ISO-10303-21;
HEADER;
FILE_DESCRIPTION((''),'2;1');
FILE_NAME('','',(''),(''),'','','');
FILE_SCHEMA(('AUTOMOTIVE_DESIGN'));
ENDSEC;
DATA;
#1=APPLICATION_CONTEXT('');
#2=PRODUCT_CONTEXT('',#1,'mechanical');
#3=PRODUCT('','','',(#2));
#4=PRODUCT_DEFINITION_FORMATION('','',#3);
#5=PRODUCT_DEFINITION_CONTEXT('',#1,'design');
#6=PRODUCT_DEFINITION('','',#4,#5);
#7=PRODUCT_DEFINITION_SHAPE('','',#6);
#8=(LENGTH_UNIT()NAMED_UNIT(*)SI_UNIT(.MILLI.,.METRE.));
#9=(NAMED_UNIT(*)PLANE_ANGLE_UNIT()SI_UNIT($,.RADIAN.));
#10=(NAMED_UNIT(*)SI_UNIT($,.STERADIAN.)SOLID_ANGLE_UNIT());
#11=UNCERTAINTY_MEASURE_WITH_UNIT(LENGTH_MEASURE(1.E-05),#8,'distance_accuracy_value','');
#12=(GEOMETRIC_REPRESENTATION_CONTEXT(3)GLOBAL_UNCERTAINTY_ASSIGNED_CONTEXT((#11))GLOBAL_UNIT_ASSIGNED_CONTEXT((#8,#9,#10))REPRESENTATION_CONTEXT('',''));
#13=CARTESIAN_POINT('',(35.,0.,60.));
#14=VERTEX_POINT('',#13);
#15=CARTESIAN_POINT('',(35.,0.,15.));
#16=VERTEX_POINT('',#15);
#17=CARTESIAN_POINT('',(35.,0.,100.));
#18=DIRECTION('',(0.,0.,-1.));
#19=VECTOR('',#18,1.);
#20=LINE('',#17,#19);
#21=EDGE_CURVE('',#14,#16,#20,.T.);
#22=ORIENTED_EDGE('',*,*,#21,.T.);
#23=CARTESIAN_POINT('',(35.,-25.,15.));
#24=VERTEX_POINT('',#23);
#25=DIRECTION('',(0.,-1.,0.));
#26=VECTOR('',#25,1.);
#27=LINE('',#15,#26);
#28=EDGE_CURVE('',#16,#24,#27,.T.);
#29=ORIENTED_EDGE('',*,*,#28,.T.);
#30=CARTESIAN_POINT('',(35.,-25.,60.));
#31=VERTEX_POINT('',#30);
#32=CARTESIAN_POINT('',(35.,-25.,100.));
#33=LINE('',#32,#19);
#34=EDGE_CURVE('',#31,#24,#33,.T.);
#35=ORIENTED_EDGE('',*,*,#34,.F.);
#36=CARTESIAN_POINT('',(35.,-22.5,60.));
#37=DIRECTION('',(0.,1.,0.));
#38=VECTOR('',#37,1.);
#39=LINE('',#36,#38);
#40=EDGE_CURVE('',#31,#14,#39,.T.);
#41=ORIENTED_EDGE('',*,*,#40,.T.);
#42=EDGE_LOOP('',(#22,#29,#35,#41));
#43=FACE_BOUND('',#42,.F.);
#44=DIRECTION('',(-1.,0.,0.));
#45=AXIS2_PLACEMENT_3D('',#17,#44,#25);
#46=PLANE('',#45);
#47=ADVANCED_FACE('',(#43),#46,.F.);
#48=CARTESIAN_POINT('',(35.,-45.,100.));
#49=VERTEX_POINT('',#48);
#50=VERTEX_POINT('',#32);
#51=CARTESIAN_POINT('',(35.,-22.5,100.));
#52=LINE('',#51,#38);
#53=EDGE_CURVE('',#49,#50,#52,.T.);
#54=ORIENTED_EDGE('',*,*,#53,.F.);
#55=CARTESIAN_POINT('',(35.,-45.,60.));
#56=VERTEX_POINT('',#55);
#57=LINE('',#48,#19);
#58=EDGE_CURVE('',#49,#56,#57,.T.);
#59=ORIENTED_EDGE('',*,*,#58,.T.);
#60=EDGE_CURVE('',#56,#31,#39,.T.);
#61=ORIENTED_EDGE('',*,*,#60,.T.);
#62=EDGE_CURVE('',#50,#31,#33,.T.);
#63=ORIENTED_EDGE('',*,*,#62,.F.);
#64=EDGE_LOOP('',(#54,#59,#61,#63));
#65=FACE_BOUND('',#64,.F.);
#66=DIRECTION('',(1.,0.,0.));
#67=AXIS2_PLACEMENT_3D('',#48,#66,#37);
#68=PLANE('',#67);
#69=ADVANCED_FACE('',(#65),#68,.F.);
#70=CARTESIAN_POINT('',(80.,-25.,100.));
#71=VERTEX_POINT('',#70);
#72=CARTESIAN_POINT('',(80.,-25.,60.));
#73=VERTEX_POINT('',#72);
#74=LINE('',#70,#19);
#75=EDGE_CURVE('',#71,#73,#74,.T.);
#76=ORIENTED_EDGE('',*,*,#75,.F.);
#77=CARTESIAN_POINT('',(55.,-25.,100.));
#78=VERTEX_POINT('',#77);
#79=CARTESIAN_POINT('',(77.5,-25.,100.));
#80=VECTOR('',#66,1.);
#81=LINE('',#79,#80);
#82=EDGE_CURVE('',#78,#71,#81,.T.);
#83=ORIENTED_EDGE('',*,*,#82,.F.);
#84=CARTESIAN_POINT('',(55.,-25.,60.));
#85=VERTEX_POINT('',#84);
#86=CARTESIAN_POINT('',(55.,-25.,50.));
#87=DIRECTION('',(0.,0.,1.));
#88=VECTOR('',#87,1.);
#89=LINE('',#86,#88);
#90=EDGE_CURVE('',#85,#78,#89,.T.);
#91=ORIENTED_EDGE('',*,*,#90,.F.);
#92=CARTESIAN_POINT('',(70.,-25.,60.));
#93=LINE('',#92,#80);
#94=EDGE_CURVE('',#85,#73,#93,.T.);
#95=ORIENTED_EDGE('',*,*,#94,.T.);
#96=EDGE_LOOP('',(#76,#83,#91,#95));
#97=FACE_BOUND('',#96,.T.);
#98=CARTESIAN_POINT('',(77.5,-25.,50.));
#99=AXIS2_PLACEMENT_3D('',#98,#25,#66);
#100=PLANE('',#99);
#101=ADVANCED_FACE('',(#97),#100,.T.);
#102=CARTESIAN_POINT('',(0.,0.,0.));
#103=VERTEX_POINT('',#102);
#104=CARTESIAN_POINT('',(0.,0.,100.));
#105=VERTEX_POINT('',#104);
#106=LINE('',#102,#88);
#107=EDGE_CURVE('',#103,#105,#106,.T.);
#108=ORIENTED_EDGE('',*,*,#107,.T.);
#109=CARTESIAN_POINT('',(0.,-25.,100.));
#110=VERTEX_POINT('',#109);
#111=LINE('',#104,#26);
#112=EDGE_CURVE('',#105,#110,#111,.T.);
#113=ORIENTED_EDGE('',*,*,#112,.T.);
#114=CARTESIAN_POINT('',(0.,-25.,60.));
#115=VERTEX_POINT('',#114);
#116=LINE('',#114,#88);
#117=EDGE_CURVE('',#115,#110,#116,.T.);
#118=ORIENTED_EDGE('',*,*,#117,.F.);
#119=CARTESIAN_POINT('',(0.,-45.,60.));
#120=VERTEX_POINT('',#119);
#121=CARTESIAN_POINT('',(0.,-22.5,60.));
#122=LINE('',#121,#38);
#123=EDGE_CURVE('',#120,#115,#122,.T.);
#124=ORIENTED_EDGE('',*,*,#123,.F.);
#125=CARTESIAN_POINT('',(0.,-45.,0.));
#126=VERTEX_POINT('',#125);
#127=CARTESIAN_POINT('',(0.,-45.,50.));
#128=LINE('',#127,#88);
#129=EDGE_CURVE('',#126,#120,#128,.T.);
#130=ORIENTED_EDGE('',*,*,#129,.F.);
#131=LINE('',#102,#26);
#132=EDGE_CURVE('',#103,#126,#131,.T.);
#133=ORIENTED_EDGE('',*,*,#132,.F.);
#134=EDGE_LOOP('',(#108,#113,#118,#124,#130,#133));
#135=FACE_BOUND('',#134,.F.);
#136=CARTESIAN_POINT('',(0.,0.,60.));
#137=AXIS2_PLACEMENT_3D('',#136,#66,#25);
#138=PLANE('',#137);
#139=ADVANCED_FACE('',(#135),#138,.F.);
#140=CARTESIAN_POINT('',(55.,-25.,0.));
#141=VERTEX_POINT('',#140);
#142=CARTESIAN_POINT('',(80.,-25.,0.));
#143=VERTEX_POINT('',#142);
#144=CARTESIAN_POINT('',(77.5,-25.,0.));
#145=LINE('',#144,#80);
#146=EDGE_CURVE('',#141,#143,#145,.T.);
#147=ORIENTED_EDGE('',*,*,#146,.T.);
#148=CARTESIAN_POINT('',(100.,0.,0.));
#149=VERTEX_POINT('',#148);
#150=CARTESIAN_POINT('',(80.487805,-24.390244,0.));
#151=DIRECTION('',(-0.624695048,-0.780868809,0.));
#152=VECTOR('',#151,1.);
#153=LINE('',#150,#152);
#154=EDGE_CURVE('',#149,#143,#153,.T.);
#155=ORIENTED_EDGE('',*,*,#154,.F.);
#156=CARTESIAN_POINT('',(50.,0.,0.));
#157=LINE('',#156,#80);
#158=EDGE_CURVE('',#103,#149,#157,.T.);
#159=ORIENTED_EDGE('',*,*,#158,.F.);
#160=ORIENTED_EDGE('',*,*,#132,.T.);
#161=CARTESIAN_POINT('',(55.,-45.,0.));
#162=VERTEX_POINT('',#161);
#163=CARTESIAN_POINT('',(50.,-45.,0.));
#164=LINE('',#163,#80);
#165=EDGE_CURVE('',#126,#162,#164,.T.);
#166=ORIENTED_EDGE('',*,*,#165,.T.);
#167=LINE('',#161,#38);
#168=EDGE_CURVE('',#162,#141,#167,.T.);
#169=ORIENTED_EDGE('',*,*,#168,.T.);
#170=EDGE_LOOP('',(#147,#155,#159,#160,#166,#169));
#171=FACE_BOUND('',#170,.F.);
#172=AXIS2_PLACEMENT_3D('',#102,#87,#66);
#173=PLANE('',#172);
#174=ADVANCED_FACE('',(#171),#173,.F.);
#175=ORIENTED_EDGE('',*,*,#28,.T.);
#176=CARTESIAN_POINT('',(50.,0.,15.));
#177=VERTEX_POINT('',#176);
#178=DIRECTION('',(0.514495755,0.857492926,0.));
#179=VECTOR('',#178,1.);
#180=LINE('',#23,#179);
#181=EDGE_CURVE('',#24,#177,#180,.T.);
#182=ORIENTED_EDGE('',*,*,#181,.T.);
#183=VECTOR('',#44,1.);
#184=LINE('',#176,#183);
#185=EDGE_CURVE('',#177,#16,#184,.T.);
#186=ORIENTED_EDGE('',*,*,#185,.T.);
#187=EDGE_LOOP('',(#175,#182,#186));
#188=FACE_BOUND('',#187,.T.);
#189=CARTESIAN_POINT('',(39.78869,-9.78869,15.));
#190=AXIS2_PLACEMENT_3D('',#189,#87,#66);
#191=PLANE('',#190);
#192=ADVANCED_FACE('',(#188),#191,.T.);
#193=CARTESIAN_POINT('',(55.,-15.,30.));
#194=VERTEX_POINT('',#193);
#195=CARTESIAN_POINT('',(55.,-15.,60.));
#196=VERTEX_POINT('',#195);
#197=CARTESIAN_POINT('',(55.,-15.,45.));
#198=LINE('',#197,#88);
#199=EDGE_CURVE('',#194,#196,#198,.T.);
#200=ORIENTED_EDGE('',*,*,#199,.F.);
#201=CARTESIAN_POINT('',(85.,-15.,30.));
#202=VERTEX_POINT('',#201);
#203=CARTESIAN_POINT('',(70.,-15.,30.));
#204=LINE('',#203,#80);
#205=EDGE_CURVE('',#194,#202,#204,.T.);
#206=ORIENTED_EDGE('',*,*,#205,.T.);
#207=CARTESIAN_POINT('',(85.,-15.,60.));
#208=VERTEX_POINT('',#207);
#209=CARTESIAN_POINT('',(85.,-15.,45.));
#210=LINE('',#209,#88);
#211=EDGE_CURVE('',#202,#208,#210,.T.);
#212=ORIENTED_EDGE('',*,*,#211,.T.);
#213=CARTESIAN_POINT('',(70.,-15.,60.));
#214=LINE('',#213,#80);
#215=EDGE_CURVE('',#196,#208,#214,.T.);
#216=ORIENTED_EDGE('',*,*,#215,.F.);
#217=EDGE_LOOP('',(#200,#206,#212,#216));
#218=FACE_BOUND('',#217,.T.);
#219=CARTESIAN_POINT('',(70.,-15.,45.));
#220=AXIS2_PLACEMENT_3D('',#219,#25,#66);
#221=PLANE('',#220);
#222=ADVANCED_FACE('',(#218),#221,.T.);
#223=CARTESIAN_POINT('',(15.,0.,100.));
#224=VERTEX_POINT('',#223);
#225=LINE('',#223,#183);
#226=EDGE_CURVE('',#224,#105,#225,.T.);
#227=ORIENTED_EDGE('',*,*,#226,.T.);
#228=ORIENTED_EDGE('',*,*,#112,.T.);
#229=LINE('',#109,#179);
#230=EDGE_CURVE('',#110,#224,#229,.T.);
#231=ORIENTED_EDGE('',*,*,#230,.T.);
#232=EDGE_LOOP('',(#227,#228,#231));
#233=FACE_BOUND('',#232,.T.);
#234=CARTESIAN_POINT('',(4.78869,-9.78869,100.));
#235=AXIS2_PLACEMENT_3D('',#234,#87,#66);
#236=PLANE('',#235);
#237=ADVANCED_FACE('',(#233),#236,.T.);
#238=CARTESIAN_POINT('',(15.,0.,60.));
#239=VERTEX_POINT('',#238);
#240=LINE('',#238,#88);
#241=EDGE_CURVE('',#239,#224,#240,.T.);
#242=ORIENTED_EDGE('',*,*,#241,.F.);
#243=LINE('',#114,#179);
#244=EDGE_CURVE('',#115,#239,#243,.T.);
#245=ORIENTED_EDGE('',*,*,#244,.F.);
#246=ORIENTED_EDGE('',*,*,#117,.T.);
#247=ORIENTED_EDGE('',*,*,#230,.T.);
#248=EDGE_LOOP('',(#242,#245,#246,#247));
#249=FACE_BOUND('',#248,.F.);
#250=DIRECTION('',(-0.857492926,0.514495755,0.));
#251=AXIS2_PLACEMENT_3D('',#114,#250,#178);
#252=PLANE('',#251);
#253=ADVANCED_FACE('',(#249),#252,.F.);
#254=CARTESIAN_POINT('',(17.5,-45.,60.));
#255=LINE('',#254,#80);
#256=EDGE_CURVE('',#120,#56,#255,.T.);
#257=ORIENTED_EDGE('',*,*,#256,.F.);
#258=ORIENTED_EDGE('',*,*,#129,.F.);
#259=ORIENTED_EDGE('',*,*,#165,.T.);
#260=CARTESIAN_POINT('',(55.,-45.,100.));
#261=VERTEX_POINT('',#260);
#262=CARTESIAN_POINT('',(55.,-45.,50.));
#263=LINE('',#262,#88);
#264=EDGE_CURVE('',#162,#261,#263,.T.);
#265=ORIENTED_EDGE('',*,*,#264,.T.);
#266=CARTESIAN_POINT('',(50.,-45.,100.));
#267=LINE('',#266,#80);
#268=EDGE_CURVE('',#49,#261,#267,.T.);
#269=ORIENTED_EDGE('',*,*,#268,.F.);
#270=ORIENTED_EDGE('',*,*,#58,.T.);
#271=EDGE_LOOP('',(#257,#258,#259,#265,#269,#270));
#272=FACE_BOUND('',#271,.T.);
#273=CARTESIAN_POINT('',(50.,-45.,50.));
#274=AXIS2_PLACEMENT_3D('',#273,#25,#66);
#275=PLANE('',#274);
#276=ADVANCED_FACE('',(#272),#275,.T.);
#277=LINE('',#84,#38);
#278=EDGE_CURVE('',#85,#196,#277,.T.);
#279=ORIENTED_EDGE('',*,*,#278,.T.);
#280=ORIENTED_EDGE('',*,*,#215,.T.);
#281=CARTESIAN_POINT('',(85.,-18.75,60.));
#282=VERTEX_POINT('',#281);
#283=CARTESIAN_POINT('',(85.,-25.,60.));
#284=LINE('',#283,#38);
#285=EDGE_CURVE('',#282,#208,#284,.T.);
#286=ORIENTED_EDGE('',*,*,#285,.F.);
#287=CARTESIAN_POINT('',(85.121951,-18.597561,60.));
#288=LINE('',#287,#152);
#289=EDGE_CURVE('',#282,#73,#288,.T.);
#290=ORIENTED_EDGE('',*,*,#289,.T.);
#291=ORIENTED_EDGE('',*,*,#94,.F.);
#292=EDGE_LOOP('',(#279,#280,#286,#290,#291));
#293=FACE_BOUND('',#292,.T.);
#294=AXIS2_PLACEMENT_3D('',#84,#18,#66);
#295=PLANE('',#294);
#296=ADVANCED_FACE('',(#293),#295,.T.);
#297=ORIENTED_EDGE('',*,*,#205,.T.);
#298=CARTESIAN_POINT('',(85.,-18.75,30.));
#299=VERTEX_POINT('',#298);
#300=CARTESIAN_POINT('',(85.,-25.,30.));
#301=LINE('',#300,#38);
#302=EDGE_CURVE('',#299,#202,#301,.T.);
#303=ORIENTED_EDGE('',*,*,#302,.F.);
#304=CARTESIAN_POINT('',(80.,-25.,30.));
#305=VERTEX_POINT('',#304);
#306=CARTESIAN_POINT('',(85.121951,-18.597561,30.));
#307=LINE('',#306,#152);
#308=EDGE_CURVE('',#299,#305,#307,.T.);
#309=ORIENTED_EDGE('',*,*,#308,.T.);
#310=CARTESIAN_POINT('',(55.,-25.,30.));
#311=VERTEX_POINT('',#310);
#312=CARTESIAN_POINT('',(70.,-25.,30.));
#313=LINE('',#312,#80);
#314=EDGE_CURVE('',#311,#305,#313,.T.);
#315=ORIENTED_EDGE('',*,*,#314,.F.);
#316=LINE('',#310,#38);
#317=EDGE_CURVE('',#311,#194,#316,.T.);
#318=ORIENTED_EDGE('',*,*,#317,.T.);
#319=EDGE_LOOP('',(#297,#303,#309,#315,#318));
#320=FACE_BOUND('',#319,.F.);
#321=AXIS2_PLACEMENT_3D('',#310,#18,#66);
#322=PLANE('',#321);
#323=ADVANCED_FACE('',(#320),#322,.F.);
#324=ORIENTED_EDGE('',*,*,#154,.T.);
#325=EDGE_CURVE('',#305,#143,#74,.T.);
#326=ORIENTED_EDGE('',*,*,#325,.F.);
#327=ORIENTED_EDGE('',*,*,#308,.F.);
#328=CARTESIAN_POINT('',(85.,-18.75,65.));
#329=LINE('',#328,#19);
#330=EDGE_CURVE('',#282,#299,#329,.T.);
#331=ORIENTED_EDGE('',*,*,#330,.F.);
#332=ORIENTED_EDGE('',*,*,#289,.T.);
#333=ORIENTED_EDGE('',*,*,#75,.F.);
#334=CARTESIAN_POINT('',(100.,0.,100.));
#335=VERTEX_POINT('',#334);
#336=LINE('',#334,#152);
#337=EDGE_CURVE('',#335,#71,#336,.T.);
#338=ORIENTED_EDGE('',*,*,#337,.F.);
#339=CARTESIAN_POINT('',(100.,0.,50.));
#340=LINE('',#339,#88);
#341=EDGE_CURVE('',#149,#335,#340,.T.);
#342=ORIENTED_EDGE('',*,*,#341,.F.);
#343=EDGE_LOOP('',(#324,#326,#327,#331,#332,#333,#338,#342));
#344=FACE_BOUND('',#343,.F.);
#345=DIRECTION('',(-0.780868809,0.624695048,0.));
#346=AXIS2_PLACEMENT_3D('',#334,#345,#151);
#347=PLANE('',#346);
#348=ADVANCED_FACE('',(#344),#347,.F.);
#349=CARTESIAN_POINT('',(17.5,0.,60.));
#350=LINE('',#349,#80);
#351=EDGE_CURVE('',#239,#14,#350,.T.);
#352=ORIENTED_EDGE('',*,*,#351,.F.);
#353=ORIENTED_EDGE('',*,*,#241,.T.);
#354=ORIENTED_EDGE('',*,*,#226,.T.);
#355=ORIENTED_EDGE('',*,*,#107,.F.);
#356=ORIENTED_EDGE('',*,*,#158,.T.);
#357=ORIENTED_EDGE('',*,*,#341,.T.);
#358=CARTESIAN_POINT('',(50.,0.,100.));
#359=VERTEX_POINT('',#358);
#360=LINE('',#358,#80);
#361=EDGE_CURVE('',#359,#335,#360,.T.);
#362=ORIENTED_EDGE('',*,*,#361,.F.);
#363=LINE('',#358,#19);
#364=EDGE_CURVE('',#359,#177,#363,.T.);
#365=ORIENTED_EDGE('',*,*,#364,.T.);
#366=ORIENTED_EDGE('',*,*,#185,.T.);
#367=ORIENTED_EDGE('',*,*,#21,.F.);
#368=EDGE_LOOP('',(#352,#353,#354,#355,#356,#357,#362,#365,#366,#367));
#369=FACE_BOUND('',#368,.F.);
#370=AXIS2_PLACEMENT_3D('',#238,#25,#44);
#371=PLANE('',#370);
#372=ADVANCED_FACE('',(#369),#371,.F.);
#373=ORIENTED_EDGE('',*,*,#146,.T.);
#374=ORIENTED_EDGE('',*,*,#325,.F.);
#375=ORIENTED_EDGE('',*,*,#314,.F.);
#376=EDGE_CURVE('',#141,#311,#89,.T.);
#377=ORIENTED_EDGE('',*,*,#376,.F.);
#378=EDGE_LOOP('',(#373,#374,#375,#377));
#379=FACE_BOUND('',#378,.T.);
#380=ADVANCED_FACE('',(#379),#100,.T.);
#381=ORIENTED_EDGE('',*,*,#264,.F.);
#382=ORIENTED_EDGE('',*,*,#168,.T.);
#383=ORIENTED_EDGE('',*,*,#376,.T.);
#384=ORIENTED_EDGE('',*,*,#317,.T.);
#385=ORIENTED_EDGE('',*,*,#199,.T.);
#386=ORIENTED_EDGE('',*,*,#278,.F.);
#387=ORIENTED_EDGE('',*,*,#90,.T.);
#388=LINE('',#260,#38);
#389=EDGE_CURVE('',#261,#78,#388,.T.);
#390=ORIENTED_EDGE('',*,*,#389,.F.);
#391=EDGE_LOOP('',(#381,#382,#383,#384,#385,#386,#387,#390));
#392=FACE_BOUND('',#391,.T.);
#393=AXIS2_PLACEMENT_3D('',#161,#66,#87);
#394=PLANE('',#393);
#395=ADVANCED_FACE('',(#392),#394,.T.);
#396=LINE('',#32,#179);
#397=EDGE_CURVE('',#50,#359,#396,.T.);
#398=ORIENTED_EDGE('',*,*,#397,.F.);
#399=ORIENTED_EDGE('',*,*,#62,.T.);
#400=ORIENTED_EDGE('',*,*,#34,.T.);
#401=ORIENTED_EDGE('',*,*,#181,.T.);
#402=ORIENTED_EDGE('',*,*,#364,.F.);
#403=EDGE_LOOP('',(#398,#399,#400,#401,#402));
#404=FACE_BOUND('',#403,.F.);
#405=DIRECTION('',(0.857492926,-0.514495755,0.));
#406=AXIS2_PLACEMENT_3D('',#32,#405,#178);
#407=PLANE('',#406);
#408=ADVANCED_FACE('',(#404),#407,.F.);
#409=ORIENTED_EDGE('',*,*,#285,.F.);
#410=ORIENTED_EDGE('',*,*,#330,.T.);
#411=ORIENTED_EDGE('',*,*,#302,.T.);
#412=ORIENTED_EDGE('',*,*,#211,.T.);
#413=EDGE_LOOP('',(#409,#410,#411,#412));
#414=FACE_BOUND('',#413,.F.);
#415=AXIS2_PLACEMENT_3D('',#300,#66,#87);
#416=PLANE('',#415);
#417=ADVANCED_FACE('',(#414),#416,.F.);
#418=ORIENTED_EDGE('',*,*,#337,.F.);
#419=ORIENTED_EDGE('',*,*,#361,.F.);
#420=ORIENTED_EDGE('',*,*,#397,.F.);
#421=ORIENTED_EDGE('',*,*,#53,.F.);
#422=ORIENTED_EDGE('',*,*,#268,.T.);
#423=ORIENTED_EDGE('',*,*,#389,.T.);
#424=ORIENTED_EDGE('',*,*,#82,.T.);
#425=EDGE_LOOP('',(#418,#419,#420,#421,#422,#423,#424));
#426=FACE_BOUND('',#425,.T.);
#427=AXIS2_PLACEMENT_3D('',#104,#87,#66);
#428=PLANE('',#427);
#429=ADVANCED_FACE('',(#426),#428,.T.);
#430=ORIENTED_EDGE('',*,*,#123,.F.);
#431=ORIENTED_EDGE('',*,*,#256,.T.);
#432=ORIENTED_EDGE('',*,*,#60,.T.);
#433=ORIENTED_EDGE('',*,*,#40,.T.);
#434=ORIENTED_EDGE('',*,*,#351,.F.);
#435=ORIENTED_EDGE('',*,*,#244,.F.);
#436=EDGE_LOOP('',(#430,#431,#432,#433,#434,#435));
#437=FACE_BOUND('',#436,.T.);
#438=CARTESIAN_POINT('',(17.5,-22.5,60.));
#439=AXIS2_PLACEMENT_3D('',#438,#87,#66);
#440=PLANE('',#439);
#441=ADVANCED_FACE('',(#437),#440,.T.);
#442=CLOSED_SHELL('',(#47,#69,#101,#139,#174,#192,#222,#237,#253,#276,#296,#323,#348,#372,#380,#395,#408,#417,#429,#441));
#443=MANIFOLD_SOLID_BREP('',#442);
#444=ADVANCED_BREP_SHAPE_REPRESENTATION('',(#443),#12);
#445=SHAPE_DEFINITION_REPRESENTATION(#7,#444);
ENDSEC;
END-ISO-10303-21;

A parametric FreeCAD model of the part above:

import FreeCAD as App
import Part
import Sketcher
Q = App.Units.Quantity


def add_polygon(sketch, points):
    """Adds a closed chain of lines whose ends are joined by coincident constraints."""
    first, n = sketch.GeometryCount, len(points)
    for a, b in zip(points, points[1:] + points[:1]):
        sketch.addGeometry(Part.LineSegment(App.Vector(*a, 0), App.Vector(*b, 0)), False)
    for i in range(n):
        sketch.addConstraint(Sketcher.Constraint("Coincident", first + i, 2, first + (i + 1) % n, 1))

doc = App.newDocument("Part")
body = doc.addObject("PartDesign::Body", "Body")

# Sketch on XZ plane
sketch1 = body.newObject("Sketcher::SketchObject", "Sketch")
sketch1.AttachmentSupport = (doc.getObject("XZ_Plane"), [""])
sketch1.MapMode = "FlatFace"
add_polygon(sketch1, [(0, 100), (0, 0), (100, 0), (100, 100)])  # lines 0-3
sketch1.addConstraint(Sketcher.Constraint("Vertical", 0))
sketch1.addConstraint(Sketcher.Constraint("Horizontal", 1))
sketch1.addConstraint(Sketcher.Constraint("Vertical", 2))
sketch1.addConstraint(Sketcher.Constraint("Horizontal", 3))
sketch1.addConstraint(Sketcher.Constraint("Coincident", 0, 2, -1, 1))
sketch1.addConstraint(Sketcher.Constraint("Equal", 3, 0))
sketch1.addConstraint(Sketcher.Constraint("DistanceX", 1, 1, 1, 2, Q("100 mm")))
pad1 = body.newObject("PartDesign::Pad", "Pad")
pad1.Profile = sketch1
pad1.Length = 45

# Sketch on XZ plane
sketch2 = body.newObject("Sketcher::SketchObject", "Sketch001")
sketch2.AttachmentSupport = (doc.getObject("XZ_Plane"), [""])
sketch2.MapMode = "FlatFace"
sketch2.AttachmentOffset = App.Placement(App.Vector(0, 0, 45), App.Rotation())
add_polygon(sketch2, [(55, 100), (55, 0), (100, 0), (100, 100)])  # lines 0-3
sketch2.addConstraint(Sketcher.Constraint("Vertical", 0))
sketch2.addConstraint(Sketcher.Constraint("Horizontal", 1))
sketch2.addConstraint(Sketcher.Constraint("Vertical", 2))
sketch2.addConstraint(Sketcher.Constraint("Horizontal", 3))
sketch2.addConstraint(Sketcher.Constraint("PointOnObject", 0, 2, -1))
sketch2.addConstraint(Sketcher.Constraint("DistanceX", 1, 1, 1, 2, Q("45 mm")))
sketch2.addConstraint(Sketcher.Constraint("DistanceY", 0, 2, 0, 1, Q("100 mm")))
sketch2.addConstraint(Sketcher.Constraint("DistanceX", -1, 1, 0, 2, Q("55 mm")))
pocket1 = body.newObject("PartDesign::Pocket", "Pocket")
pocket1.Profile = sketch2
pocket1.Length = 20

# Sketch on XY plane
sketch3 = body.newObject("Sketcher::SketchObject", "Sketch002")
sketch3.AttachmentSupport = (doc.getObject("XY_Plane"), [""])
sketch3.MapMode = "FlatFace"
sketch3.AttachmentOffset = App.Placement(App.Vector(0, 0, 100), App.Rotation())
add_polygon(sketch3, [(0, 0), (0, -45), (35, -45), (35, 0)])  # lines 0-3
sketch3.addConstraint(Sketcher.Constraint("Vertical", 0))
sketch3.addConstraint(Sketcher.Constraint("Horizontal", 1))
sketch3.addConstraint(Sketcher.Constraint("Vertical", 2))
sketch3.addConstraint(Sketcher.Constraint("Horizontal", 3))
sketch3.addConstraint(Sketcher.Constraint("Coincident", 3, 2, -1, 1))
sketch3.addConstraint(Sketcher.Constraint("DistanceX", 1, 1, 1, 2, Q("35 mm")))
sketch3.addConstraint(Sketcher.Constraint("DistanceY", 0, 2, 0, 1, Q("45 mm")))
pocket2 = body.newObject("PartDesign::Pocket", "Pocket001")
pocket2.Profile = sketch3
pocket2.Length = 40

# Sketch on XY plane
sketch4 = body.newObject("Sketcher::SketchObject", "Sketch003")
sketch4.AttachmentSupport = (doc.getObject("XY_Plane"), [""])
sketch4.MapMode = "FlatFace"
sketch4.AttachmentOffset = App.Placement(App.Vector(0, 0, 60), App.Rotation())
add_polygon(sketch4, [(15, 0), (0, 0), (0, -25)])  # lines 0-2
sketch4.addConstraint(Sketcher.Constraint("Horizontal", 0))
sketch4.addConstraint(Sketcher.Constraint("Vertical", 1))
sketch4.addConstraint(Sketcher.Constraint("Coincident", 0, 2, -1, 1))
sketch4.addConstraint(Sketcher.Constraint("DistanceX", 0, 2, 0, 1, Q("15 mm")))
sketch4.addConstraint(Sketcher.Constraint("DistanceY", 1, 2, 1, 1, Q("25 mm")))
pad2 = body.newObject("PartDesign::Pad", "Pad001")
pad2.Profile = sketch4
pad2.Length = 40

# Sketch on XY plane
sketch5 = body.newObject("Sketcher::SketchObject", "Sketch004")
sketch5.AttachmentSupport = (doc.getObject("XY_Plane"), [""])
sketch5.MapMode = "FlatFace"
sketch5.AttachmentOffset = App.Placement(App.Vector(0, 0, 100), App.Rotation())
add_polygon(sketch5, [(100, -25), (100, 0), (80, -25)])  # lines 0-2
sketch5.addConstraint(Sketcher.Constraint("Vertical", 0))
sketch5.addConstraint(Sketcher.Constraint("Horizontal", 2))
sketch5.addConstraint(Sketcher.Constraint("PointOnObject", 0, 2, -1))
sketch5.addConstraint(Sketcher.Constraint("DistanceX", 2, 1, 2, 2, Q("20 mm")))
sketch5.addConstraint(Sketcher.Constraint("DistanceY", 0, 1, 0, 2, Q("25 mm")))
sketch5.addConstraint(Sketcher.Constraint("DistanceX", -1, 1, 0, 2, Q("100 mm")))
pocket3 = body.newObject("PartDesign::Pocket", "Pocket002")
pocket3.Profile = sketch5
pocket3.Type = "ThroughAll"

# Sketch on XZ plane
sketch6 = body.newObject("Sketcher::SketchObject", "Sketch005")
sketch6.AttachmentSupport = (doc.getObject("XZ_Plane"), [""])
sketch6.MapMode = "FlatFace"
sketch6.AttachmentOffset = App.Placement(App.Vector(0, 0, 25), App.Rotation())
add_polygon(sketch6, [(55, 60), (55, 30), (85, 30), (85, 60)])  # lines 0-3
sketch6.addConstraint(Sketcher.Constraint("Vertical", 0))
sketch6.addConstraint(Sketcher.Constraint("Horizontal", 1))
sketch6.addConstraint(Sketcher.Constraint("Vertical", 2))
sketch6.addConstraint(Sketcher.Constraint("Horizontal", 3))
sketch6.addConstraint(Sketcher.Constraint("Equal", 3, 0))
sketch6.addConstraint(Sketcher.Constraint("DistanceX", 1, 1, 1, 2, Q("30 mm")))
sketch6.addConstraint(Sketcher.Constraint("DistanceX", -1, 1, 0, 2, Q("55 mm")))
sketch6.addConstraint(Sketcher.Constraint("DistanceY", -1, 1, 0, 2, Q("30 mm")))
pocket4 = body.newObject("PartDesign::Pocket", "Pocket003")
pocket4.Profile = sketch6
pocket4.Length = 10

# Sketch on XY plane
sketch7 = body.newObject("Sketcher::SketchObject", "Sketch006")
sketch7.AttachmentSupport = (doc.getObject("XY_Plane"), [""])
sketch7.MapMode = "FlatFace"
sketch7.AttachmentOffset = App.Placement(App.Vector(0, 0, 100), App.Rotation())
add_polygon(sketch7, [(50, 0), (35, 0), (35, -25)])  # lines 0-2
sketch7.addConstraint(Sketcher.Constraint("Horizontal", 0))
sketch7.addConstraint(Sketcher.Constraint("Vertical", 1))
sketch7.addConstraint(Sketcher.Constraint("PointOnObject", 0, 2, -1))
sketch7.addConstraint(Sketcher.Constraint("DistanceX", 0, 2, 0, 1, Q("15 mm")))
sketch7.addConstraint(Sketcher.Constraint("DistanceY", 1, 2, 1, 1, Q("25 mm")))
sketch7.addConstraint(Sketcher.Constraint("DistanceX", -1, 1, 0, 2, Q("35 mm")))
pocket5 = body.newObject("PartDesign::Pocket", "Pocket004")
pocket5.Profile = sketch7
pocket5.Length = 85

doc.recompute()
